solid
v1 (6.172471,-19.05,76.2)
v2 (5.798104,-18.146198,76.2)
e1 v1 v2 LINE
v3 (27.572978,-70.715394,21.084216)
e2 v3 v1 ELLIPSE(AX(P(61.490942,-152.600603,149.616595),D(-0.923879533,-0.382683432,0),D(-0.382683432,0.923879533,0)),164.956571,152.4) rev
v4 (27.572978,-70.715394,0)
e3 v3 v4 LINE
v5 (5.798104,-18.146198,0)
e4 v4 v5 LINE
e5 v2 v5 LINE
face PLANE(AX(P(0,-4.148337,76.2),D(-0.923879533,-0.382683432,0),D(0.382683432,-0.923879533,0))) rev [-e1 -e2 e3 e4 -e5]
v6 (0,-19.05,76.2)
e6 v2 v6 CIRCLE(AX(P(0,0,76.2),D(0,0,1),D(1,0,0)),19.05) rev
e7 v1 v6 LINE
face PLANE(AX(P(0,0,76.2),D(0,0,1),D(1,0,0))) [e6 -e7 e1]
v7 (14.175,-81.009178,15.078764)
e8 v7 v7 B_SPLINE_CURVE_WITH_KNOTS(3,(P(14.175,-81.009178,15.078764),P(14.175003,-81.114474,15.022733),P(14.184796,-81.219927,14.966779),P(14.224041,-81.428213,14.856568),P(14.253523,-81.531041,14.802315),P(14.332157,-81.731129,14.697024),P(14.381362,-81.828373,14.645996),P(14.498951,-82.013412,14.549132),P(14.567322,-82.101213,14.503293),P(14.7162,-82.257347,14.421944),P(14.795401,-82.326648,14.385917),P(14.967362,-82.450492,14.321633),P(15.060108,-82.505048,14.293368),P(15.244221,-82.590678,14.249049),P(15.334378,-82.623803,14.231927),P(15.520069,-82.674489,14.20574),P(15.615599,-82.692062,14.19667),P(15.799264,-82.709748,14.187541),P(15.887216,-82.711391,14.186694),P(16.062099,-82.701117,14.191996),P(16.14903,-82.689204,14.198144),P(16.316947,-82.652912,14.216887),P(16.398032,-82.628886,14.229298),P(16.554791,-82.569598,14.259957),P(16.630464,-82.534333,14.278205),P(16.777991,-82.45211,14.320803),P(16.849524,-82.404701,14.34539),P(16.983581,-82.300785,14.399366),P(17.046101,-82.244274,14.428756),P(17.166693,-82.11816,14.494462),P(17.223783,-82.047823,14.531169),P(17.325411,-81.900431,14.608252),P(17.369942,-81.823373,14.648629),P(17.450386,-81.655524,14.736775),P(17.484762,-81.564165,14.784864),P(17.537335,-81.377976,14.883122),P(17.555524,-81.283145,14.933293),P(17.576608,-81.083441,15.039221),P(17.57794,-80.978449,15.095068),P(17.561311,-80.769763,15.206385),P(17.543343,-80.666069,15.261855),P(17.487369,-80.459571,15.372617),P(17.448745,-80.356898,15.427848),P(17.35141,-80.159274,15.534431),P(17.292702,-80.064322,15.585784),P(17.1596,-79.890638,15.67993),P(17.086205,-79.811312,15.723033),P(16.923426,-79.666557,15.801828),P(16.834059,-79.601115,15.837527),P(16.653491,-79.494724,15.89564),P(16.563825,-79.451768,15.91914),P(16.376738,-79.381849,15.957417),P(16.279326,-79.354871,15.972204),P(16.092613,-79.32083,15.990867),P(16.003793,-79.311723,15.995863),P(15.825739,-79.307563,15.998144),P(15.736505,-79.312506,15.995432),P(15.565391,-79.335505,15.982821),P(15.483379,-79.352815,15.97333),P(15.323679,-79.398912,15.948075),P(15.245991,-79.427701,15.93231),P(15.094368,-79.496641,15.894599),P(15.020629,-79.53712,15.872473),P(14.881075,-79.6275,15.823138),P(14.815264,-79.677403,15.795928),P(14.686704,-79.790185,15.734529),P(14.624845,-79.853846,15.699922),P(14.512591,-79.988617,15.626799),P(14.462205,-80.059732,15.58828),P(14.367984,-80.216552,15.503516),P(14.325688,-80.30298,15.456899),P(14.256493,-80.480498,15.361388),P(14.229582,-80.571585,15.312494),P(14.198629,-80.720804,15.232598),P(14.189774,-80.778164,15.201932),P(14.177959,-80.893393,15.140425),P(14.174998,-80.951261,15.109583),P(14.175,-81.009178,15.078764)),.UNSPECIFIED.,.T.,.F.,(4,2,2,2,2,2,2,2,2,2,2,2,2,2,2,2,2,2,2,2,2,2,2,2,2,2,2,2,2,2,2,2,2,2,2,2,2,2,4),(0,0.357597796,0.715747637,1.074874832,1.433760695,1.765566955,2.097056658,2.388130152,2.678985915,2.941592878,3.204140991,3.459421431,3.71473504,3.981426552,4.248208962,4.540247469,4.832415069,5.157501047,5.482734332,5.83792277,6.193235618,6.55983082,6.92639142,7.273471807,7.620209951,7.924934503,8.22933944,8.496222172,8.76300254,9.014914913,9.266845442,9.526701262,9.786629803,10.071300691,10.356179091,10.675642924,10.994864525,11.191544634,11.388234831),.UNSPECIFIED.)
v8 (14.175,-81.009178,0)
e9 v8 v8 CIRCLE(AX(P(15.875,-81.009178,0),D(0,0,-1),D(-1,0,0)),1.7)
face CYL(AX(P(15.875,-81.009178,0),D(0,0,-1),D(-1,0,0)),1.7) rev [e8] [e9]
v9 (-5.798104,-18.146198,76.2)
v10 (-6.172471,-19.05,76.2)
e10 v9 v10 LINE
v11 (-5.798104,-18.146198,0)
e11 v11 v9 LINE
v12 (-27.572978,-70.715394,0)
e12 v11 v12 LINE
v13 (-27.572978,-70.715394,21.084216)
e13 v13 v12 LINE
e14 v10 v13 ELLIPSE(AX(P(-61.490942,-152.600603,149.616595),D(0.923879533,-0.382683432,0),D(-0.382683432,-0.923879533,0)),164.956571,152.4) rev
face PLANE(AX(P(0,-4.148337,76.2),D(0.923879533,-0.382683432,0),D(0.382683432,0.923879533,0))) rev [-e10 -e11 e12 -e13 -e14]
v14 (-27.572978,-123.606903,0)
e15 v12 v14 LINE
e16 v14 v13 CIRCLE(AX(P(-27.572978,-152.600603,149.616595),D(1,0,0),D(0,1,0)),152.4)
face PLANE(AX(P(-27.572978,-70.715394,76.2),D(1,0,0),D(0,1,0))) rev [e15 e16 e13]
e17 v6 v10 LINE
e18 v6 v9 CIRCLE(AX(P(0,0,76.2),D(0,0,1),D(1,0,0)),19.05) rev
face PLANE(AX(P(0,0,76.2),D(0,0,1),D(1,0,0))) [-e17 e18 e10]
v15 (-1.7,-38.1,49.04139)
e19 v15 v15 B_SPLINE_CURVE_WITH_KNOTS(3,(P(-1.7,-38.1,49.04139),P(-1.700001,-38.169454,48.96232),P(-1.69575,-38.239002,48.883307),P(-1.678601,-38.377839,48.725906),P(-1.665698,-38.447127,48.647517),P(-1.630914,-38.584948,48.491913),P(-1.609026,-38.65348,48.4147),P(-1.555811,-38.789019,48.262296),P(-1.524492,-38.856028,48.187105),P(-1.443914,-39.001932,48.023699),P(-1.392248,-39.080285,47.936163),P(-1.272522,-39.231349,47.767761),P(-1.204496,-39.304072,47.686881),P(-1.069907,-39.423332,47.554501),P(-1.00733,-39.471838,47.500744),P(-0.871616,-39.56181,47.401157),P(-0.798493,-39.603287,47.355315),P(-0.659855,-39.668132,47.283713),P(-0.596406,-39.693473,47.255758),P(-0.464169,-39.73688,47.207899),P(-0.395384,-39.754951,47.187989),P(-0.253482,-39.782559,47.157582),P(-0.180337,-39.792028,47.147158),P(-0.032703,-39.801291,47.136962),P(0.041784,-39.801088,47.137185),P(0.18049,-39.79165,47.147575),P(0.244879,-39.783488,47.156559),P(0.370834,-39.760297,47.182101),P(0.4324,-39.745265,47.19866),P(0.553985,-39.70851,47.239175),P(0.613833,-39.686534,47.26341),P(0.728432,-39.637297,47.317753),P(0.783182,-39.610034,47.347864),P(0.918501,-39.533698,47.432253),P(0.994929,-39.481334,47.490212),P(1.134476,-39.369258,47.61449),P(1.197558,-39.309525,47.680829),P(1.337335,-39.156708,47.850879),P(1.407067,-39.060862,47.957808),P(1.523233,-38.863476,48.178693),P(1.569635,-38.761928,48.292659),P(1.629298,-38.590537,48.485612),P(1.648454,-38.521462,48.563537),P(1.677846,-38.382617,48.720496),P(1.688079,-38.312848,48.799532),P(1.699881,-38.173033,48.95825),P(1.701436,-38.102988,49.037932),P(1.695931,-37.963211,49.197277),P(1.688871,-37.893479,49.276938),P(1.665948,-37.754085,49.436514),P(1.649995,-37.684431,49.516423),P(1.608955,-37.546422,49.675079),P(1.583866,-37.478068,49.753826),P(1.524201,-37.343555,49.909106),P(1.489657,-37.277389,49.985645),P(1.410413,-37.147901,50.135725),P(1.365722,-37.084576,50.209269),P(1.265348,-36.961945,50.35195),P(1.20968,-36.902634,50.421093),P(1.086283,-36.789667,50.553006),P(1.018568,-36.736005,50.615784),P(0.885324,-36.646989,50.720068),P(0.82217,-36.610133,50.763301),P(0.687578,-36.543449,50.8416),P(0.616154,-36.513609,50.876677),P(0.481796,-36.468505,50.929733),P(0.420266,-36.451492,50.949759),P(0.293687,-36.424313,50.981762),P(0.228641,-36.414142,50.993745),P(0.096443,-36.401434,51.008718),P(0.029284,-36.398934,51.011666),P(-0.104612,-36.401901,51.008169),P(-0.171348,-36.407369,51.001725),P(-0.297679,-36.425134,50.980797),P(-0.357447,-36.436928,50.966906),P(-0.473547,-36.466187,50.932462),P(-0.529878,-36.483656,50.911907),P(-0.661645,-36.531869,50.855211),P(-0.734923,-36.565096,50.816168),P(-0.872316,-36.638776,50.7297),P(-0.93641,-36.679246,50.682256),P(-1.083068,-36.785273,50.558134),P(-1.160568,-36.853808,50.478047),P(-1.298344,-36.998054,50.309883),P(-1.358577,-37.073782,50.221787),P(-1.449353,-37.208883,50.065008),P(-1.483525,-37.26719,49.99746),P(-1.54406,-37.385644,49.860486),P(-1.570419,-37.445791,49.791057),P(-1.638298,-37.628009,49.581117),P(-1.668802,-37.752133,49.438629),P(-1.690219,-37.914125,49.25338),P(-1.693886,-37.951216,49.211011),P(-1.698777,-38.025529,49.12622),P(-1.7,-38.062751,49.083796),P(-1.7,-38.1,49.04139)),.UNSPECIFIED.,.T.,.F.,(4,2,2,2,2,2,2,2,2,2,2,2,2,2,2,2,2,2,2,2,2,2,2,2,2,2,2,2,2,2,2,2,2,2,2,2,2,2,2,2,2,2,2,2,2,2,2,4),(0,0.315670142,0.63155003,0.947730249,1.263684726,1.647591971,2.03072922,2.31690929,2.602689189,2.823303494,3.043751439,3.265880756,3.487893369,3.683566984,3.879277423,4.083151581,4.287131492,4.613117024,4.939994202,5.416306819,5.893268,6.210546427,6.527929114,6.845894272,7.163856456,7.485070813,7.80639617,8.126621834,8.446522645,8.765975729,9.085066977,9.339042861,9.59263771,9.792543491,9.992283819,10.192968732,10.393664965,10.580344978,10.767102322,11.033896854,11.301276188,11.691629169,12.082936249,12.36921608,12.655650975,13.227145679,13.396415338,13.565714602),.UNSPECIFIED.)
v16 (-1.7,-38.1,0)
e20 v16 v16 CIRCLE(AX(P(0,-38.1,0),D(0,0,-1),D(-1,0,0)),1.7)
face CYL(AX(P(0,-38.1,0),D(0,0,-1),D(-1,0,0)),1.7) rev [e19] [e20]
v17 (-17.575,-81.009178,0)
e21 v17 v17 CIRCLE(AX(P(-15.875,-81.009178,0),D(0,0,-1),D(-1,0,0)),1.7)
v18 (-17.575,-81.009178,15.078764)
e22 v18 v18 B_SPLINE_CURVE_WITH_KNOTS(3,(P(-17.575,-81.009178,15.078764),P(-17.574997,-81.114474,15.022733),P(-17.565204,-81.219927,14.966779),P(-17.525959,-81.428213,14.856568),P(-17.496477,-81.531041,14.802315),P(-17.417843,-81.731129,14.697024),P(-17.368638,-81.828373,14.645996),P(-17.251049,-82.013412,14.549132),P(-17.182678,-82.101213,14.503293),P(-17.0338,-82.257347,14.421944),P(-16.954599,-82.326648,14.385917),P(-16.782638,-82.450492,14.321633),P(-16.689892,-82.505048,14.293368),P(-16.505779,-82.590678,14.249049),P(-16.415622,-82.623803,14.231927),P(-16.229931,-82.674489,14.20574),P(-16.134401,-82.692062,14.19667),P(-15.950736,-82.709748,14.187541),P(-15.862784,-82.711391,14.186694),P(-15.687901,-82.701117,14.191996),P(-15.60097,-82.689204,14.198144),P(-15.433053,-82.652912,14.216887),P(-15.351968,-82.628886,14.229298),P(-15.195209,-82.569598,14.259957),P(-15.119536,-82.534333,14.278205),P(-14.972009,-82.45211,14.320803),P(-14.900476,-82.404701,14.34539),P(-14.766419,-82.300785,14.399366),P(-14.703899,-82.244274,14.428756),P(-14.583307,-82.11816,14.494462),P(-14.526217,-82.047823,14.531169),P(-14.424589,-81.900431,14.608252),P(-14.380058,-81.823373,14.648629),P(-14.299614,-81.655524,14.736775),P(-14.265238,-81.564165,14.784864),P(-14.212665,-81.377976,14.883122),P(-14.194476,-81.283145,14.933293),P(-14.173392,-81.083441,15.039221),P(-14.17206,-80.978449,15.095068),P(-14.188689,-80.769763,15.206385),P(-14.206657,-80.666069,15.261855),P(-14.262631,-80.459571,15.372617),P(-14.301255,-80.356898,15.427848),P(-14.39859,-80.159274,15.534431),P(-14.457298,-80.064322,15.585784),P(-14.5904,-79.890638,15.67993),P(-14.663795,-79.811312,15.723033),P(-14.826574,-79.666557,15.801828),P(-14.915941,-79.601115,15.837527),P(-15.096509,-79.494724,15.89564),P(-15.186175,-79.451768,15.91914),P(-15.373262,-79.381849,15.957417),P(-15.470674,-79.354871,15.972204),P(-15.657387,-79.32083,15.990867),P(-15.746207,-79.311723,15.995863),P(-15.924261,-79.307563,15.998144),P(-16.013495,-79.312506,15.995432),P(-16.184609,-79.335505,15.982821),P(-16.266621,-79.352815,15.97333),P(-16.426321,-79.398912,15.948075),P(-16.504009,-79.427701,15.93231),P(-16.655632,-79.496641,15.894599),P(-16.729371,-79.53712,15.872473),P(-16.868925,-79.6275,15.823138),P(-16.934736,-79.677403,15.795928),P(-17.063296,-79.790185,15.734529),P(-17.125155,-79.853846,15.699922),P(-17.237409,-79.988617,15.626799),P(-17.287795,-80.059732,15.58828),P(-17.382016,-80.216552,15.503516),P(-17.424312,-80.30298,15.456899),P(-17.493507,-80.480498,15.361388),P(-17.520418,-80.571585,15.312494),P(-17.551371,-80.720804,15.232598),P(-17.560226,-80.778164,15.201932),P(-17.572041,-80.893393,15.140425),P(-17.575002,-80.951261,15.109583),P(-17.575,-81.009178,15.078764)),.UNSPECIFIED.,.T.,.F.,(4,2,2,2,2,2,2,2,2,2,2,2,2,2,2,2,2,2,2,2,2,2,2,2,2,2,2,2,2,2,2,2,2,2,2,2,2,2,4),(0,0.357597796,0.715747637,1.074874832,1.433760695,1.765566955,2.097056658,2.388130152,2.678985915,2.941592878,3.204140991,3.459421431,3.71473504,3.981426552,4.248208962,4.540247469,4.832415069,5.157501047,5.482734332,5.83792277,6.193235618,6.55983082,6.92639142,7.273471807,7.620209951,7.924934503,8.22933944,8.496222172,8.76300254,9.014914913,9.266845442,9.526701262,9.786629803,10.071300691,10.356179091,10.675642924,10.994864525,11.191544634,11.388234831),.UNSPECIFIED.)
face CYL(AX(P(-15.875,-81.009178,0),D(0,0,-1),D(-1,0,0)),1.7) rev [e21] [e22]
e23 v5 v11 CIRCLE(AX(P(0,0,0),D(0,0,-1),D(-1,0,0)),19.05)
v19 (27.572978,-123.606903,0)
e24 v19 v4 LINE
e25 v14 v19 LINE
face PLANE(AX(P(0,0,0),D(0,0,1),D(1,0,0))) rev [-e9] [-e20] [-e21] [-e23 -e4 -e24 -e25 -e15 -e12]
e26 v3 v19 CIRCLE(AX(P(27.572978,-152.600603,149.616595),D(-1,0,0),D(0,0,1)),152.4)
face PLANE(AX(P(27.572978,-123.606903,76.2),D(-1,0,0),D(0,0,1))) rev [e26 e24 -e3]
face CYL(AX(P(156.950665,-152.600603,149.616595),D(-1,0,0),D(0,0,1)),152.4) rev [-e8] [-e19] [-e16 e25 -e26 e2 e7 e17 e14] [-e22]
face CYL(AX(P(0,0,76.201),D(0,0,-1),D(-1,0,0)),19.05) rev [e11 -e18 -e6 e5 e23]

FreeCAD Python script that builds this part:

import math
import FreeCAD as App
import Part
import Sketcher
from FreeCAD import Vector
Q = App.Units.Quantity

doc = App.newDocument("Part")
params = doc.addObject("Spreadsheet::Sheet", "Params")
for row, (alias, value) in enumerate([
    ("pad1_length", "3 in"),
    ("sketch2_radius", "6 in"),
    ("sketch2_height", "3 in"),
    ("pocket1_length", "55.145956 mm"),
    ("hole_diameter", "3.4 mm"),
    ("sketch4_diameter", "1.5 in"),
    ("pocket2_length", "3 in"),
], start=1):
    params.set(f"A{row}", alias)
    params.set(f"B{row}", "=" + value)
    params.setAlias(f"B{row}", alias)

body = doc.addObject("PartDesign::Body", "Body")

# Sketch on XY plane
sketch1 = doc.addObject("Sketcher::SketchObject", "Sketch")
body.addObject(sketch1)
sketch1.AttachmentSupport = (doc.XY_Plane, [""])
sketch1.MapMode = "FlatFace"
sketch1.addGeometry([
    Part.LineSegment(Vector(27.572978, -123.606903, 0), Vector(27.572978, -70.715394, 0)),  # 0
    Part.LineSegment(Vector(27.572978, -70.715394, 0), Vector(0, -4.148337, 0)),  # 1
    Part.LineSegment(Vector(0, -4.148337, 0), Vector(-27.572978, -70.715394, 0)),  # 2
    Part.LineSegment(Vector(-27.572978, -70.715394, 0), Vector(-27.572978, -123.606903, 0)),  # 3
    Part.LineSegment(Vector(-27.572978, -123.606903, 0), Vector(27.572978, -123.606903, 0)),  # 4
], False)
sketch1.addConstraint([
    Sketcher.Constraint("Coincident", 0, 2, 1, 1),
    Sketcher.Constraint("Coincident", 1, 2, 2, 1),
    Sketcher.Constraint("Coincident", 2, 2, 3, 1),
    Sketcher.Constraint("Coincident", 3, 2, 4, 1),
    Sketcher.Constraint("Coincident", 4, 2, 0, 1),
    Sketcher.Constraint("Vertical", 0),
    Sketcher.Constraint("Vertical", 3),
    Sketcher.Constraint("Horizontal", 4),
    Sketcher.Constraint("Symmetric", 0, 2, 2, 2, -2),
    Sketcher.Constraint("PointOnObject", 1, 2, -2),
    Sketcher.Constraint("Angle", 1, Q("112.5 deg")),
    Sketcher.Constraint("DistanceY", 0, 1, 0, 2, Q("52.89151 mm")),
    Sketcher.Constraint("DistanceX", 4, 1, 4, 2, Q("55.145955 mm")),
    Sketcher.Constraint("DistanceY", 0, 2, -1, 1, Q("70.715394 mm")),
])
pad1 = doc.addObject("PartDesign::Pad", "Pad")
body.addObject(pad1)
pad1.Profile = sketch1
pad1.setExpression("Length", "Params.pad1_length")

# Sketch on YZ plane
sketch2 = doc.addObject("Sketcher::SketchObject", "Sketch001")
body.addObject(sketch2)
sketch2.AttachmentSupport = (doc.YZ_Plane, [""])
sketch2.MapMode = "FlatFace"
sketch2.AttachmentOffset = App.Placement(Vector(0, 0, -27.572978), App.Rotation())
sketch2.addGeometry([
    Part.LineSegment(Vector(-123.606903, 76.2, 0), Vector(-123.606903, 0, 0)),
    Part.ArcOfCircle(Part.Circle(Vector(-152.600603, 149.616595, 0), Vector(0, 0, 1), 152.4), math.radians(-79.032779), math.radians(-28.798856)),
    Part.LineSegment(Vector(-19.05, 76.2, 0), Vector(-123.606903, 76.2, 0)),
], False)
sketch2.addConstraint([
    Sketcher.Constraint("Coincident", 0, 2, 1, 1),
    Sketcher.Constraint("Coincident", 1, 2, 2, 1),
    Sketcher.Constraint("Coincident", 2, 2, 0, 1),
    Sketcher.Constraint("Vertical", 0),
    Sketcher.Constraint("Horizontal", 2),
    Sketcher.Constraint("PointOnObject", 0, 2, -1),
    Sketcher.Constraint("Radius", 1, Q("6 in")),
    Sketcher.Constraint("DistanceY", 0, 2, 0, 1, Q("3 in")),
    Sketcher.Constraint("DistanceX", 1, 2, -1, 1, Q("0.75 in")),
    Sketcher.Constraint("DistanceX", 1, 3, 0, 2, Q("28.9937 mm")),
])
sketch2.setExpression("Constraints[6]", "Params.sketch2_radius")
sketch2.setExpression("Constraints[7]", "Params.sketch2_height")
pocket1 = doc.addObject("PartDesign::Pocket", "Pocket")
body.addObject(pocket1)
pocket1.Profile = sketch2
pocket1.setExpression("Length", "Params.pocket1_length")
pocket1.Reversed = True

# Sketch on XY plane
sketch3 = doc.addObject("Sketcher::SketchObject", "Sketch002")
body.addObject(sketch3)
sketch3.AttachmentSupport = (doc.XY_Plane, [""])
sketch3.MapMode = "FlatFace"
sketch3.addGeometry([
    Part.Circle(Vector(15.875, -81.009178, 0), Vector(0, 0, 1), 1.7),
    Part.Circle(Vector(-15.875, -81.009178, 0), Vector(0, 0, 1), 1.7),
    Part.Circle(Vector(0, -38.1, 0), Vector(0, 0, 1), 1.7),
], False)
sketch3.addConstraint([
    Sketcher.Constraint("Equal", 0, 1),
    Sketcher.Constraint("Equal", 1, 2),
    Sketcher.Constraint("Symmetric", 0, 3, 1, 3, -2),
    Sketcher.Constraint("PointOnObject", 2, 3, -2),
    Sketcher.Constraint("DistanceY", 2, 3, -1, 1, Q("1.5 in")),
    Sketcher.Constraint("Diameter", 0, Q("3.4 mm")),
    Sketcher.Constraint("DistanceX", 1, 3, 0, 3, Q("1.25 in")),
    Sketcher.Constraint("DistanceY", 0, 3, -1, 1, Q("81.009178 mm")),
])
doc.recompute()
hole = doc.addObject("PartDesign::Hole", "Hole")
body.addObject(hole)
hole.Profile = sketch3
hole.ThreadType = "None"
hole.setExpression("Diameter", "Params.hole_diameter")
hole.DepthType = "ThroughAll"
hole.Reversed = True

# Sketch on XY plane
sketch4 = doc.addObject("Sketcher::SketchObject", "Sketch003")
body.addObject(sketch4)
sketch4.AttachmentSupport = (doc.XY_Plane, [""])
sketch4.MapMode = "FlatFace"
sketch4.addGeometry(Part.Circle(Vector(0, 0, 0), Vector(0, 0, 1), 19.05), False)
sketch4.addConstraint([
    Sketcher.Constraint("Coincident", 0, 3, -1, 1),
    Sketcher.Constraint("Diameter", 0, Q("1.5 in")),
])
sketch4.setExpression("Constraints[1]", "Params.sketch4_diameter")
pocket2 = doc.addObject("PartDesign::Pocket", "Pocket001")
body.addObject(pocket2)
pocket2.Profile = sketch4
pocket2.setExpression("Length", "Params.pocket2_length")
pocket2.Reversed = True

doc.recompute()
